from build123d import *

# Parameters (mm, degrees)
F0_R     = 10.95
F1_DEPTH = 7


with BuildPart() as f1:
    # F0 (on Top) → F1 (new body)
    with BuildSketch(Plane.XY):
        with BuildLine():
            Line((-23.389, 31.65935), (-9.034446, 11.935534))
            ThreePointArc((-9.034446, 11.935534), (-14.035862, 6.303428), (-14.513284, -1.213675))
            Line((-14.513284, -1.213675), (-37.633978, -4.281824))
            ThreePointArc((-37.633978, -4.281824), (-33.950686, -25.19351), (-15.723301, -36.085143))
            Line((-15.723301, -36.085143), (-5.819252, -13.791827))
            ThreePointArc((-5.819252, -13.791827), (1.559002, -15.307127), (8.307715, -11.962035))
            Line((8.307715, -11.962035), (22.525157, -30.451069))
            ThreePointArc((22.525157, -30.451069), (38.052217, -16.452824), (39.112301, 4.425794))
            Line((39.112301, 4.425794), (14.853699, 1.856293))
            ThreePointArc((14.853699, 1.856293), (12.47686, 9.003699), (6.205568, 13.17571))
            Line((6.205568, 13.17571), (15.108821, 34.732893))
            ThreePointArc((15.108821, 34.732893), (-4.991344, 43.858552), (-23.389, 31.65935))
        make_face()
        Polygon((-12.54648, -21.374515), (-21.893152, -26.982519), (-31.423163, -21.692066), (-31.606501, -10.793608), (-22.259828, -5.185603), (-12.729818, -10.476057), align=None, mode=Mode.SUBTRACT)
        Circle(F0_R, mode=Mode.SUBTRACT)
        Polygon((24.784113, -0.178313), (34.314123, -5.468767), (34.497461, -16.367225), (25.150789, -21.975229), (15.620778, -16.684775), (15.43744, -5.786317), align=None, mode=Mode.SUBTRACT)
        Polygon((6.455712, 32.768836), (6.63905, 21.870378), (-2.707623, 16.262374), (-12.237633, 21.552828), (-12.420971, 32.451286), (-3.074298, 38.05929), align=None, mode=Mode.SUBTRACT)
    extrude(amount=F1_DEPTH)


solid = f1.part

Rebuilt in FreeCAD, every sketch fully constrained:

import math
import FreeCAD as App
import Part
import Sketcher
from FreeCAD import Vector
Q = App.Units.Quantity


def add_polygon(sketch, points):
    """Adds a closed chain of lines whose ends are joined by coincident constraints."""
    first, n = sketch.GeometryCount, len(points)
    for a, b in zip(points, points[1:] + points[:1]):
        sketch.addGeometry(Part.LineSegment(App.Vector(*a, 0), App.Vector(*b, 0)), False)
    for i in range(n):
        sketch.addConstraint(Sketcher.Constraint("Coincident", first + i, 2, first + (i + 1) % n, 1))

doc = App.newDocument("Part")
params = doc.addObject("Spreadsheet::Sheet", "Params")
for row, (alias, value) in enumerate([
    ("sketch1_diameter", "21.9 mm"),
    ("sketch1_length", "10.9 mm"),
    ("sketch1_length2", "10.899999 mm"),
    ("sketch1_length3", "10.9 mm"),
    ("sketch1_length4", "10.9 mm"),
    ("pad1_length", "7 mm"),
], start=1):
    params.set(f"A{row}", alias)
    params.set(f"B{row}", "=" + value)
    params.setAlias(f"B{row}", alias)

body = doc.addObject("PartDesign::Body", "Body")

# Sketch on XY plane
sketch1 = doc.addObject("Sketcher::SketchObject", "Sketch")
body.addObject(sketch1)
sketch1.AttachmentSupport = (doc.XY_Plane, [""])
sketch1.MapMode = "FlatFace"
sketch1.addGeometry(Part.LineSegment(Vector(-23.389, 31.65935, 0), Vector(-9.034446, 11.935534, 0)), False)  # 0
sketch1.addGeometry(Part.ArcOfCircle(Part.Circle(Vector(-3.350159, 1.851051, 0), Vector(0, 0, 1), 11.576179), math.radians(119.408509), math.radians(195.351754)), False)  # 1
sketch1.addGeometry(Part.LineSegment(Vector(-14.513284, -1.213675, 0), Vector(-37.633978, -4.281824, 0)), False)  # 2
sketch1.addGeometry(Part.ArcOfCircle(Part.Circle(Vector(-12.92872, -10.710571, 0), Vector(0, 0, 1), 25.527996), math.radians(165.414097), math.radians(263.715165)), False)  # 3
sketch1.addGeometry(Part.LineSegment(Vector(-15.723301, -36.085143, 0), Vector(-5.819252, -13.791827, 0)), False)  # 4
sketch1.addGeometry(Part.ArcOfCircle(Part.Circle(Vector(0.072022, -3.826849, 0), Vector(0, 0, 1), 11.576178), math.radians(-120.591489), math.radians(-44.648244)), False)  # 5
sketch1.addGeometry(Part.LineSegment(Vector(8.307715, -11.962035, 0), Vector(22.525157, -30.451069, 0)), False)  # 6
sketch1.addGeometry(Part.ArcOfCircle(Part.Circle(Vector(13.415262, -4.735694, 0), Vector(0, 0, 1), 27.281325), math.radians(-70.492866), math.radians(19.622128)), False)  # 7
sketch1.addGeometry(Part.LineSegment(Vector(39.112301, 4.425794, 0), Vector(14.853699, 1.856293, 0)), False)  # 8
sketch1.addGeometry(Part.ArcOfCircle(Part.Circle(Vector(3.278137, 1.975797, 0), Vector(0, 0, 1), 11.576178), math.radians(-0.591489), math.radians(75.351761)), False)  # 9
sketch1.addGeometry(Part.LineSegment(Vector(6.205568, 13.17571, 0), Vector(15.108821, 34.732893, 0)), False)  # 10
sketch1.addGeometry(Part.ArcOfCircle(Part.Circle(Vector(-3.178548, 21.152285, 0), Vector(0, 0, 1), 22.778516), math.radians(36.598402), math.radians(152.530858)), False)  # 11
add_polygon(sketch1, [(-12.729818, -10.476057), (-12.54648, -21.374515), (-21.893152, -26.982519), (-31.423163, -21.692066), (-31.606501, -10.793608), (-22.259828, -5.185603)])  # lines 12-17
sketch1.addGeometry(Part.Circle(Vector(0, 0, 0), Vector(0, 0, 1), 10.95), False)  # 18
add_polygon(sketch1, [(15.43744, -5.786317), (24.784113, -0.178313), (34.314123, -5.468767), (34.497461, -16.367225), (25.150789, -21.975229), (15.620778, -16.684775)])  # lines 19-24
add_polygon(sketch1, [(-3.074298, 38.05929), (6.455712, 32.768836), (6.63905, 21.870378), (-2.707623, 16.262374), (-12.237633, 21.552828), (-12.420971, 32.451286)])  # lines 25-30
sketch1.addConstraint([
    Sketcher.Constraint("Coincident", 0, 2, 1, 1),
    Sketcher.Constraint("Coincident", 1, 2, 2, 1),
    Sketcher.Constraint("Coincident", 2, 2, 3, 1),
    Sketcher.Constraint("Coincident", 3, 2, 4, 1),
    Sketcher.Constraint("Coincident", 4, 2, 5, 1),
    Sketcher.Constraint("Coincident", 5, 2, 6, 1),
    Sketcher.Constraint("Coincident", 6, 2, 7, 1),
    Sketcher.Constraint("Coincident", 7, 2, 8, 1),
    Sketcher.Constraint("Coincident", 8, 2, 9, 1),
    Sketcher.Constraint("Coincident", 9, 2, 10, 1),
    Sketcher.Constraint("Coincident", 10, 2, 11, 1),
    Sketcher.Constraint("Coincident", 11, 2, 0, 1),
    Sketcher.Constraint("Coincident", 18, 3, -1, 1),
    Sketcher.Constraint("Diameter", 18, Q("21.9 mm")),
    Sketcher.Constraint("Distance", 12, Q("10.9 mm")),
    Sketcher.Constraint("Distance", 13, Q("10.899999 mm")),
    Sketcher.Constraint("Distance", 14, Q("10.9 mm")),
    Sketcher.Constraint("Distance", 15, Q("10.9 mm")),
    Sketcher.Constraint("Distance", 16, Q("10.900001 mm")),
    Sketcher.Constraint("Distance", 17, Q("10.9 mm")),
    Sketcher.Constraint("Distance", 19, Q("10.9 mm")),
    Sketcher.Constraint("Distance", 20, Q("10.9 mm")),
    Sketcher.Constraint("Distance", 21, Q("10.9 mm")),
    Sketcher.Constraint("Distance", 22, Q("10.899999 mm")),
    Sketcher.Constraint("Distance", 23, Q("10.900001 mm")),
    Sketcher.Constraint("Distance", 24, Q("10.9 mm")),
    Sketcher.Constraint("Distance", 25, Q("10.9 mm")),
    Sketcher.Constraint("Distance", 26, Q("10.9 mm")),
    Sketcher.Constraint("Distance", 27, Q("10.9 mm")),
    Sketcher.Constraint("Distance", 28, Q("10.9 mm")),
    Sketcher.Constraint("Distance", 29, Q("10.9 mm")),
    Sketcher.Constraint("Distance", 30, Q("10.9 mm")),
    Sketcher.Constraint("Radius", 1, Q("11.576179 mm")),
    Sketcher.Constraint("Radius", 9, Q("11.576178 mm")),
    Sketcher.Constraint("DistanceX", 11, 2, -1, 1, Q("23.389 mm")),
    Sketcher.Constraint("Radius", 3, Q("25.527996 mm")),
    Sketcher.Constraint("Radius", 5, Q("11.576178 mm")),
    Sketcher.Constraint("Radius", 7, Q("27.281325 mm")),
    Sketcher.Constraint("Radius", 11, Q("22.778516 mm")),
    Sketcher.Constraint("DistanceX", 2, 2, 5, 3, Q("37.706 mm")),
    Sketcher.Constraint("DistanceY", 11, 3, 29, 2, Q("11.299001 mm")),
    Sketcher.Constraint("DistanceX", 3, 2, -1, 1, Q("15.723301 mm")),
    Sketcher.Constraint("DistanceX", -1, 1, 7, 2, Q("39.112301 mm")),
    Sketcher.Constraint("DistanceX", -1, 1, 8, 2, Q("14.853699 mm")),
    Sketcher.Constraint("DistanceX", 15, 2, -1, 1, Q("31.606501 mm")),
    Sketcher.Constraint("DistanceX", 30, 2, -1, 1, Q("3.074298 mm")),
    Sketcher.Constraint("DistanceY", 5, 3, 1, 3, Q("5.6779 mm")),
    Sketcher.Constraint("DistanceY", 8, 2, 10, 2, Q("32.8766 mm")),
    Sketcher.Constraint("DistanceY", 1, 3, 11, 2, Q("29.808299 mm")),
    Sketcher.Constraint("DistanceX", 12, 2, 5, 3, Q("12.618502 mm")),
    Sketcher.Constraint("DistanceX", 13, 2, 4, 2, Q("16.0739 mm")),
    Sketcher.Constraint("DistanceX", 3, 3, 17, 2, Q("0.198902 mm")),
    Sketcher.Constraint("DistanceX", 7, 3, 21, 2, Q("21.082199 mm")),
    Sketcher.Constraint("DistanceY", 0, 2, 25, 2, Q("20.833302 mm")),
    Sketcher.Constraint("DistanceX", 11, 3, 26, 2, Q("9.817598 mm")),
    Sketcher.Constraint("Distance", 2, Q("23.323379 mm")),
    Sketcher.Constraint("Distance", 6, Q("23.32338 mm")),
    Sketcher.Constraint("Distance", 10, Q("23.32338 mm")),
    Sketcher.Constraint("DistanceX", 1, 3, -1, 1, Q("3.350159 mm")),
    Sketcher.Constraint("DistanceY", -1, 1, 1, 3, Q("1.851051 mm")),
    Sketcher.Constraint("DistanceX", 3, 3, -1, 1, Q("12.92872 mm")),
    Sketcher.Constraint("DistanceY", 3, 3, -1, 1, Q("10.710571 mm")),
    Sketcher.Constraint("DistanceX", -1, 1, 5, 3, Q("0.072022 mm")),
    Sketcher.Constraint("DistanceX", -1, 1, 7, 3, Q("13.415262 mm")),
    Sketcher.Constraint("DistanceX", 11, 3, -1, 1, Q("3.178548 mm")),
    Sketcher.Constraint("DistanceX", 4, 2, -1, 1, Q("5.819252 mm")),
    Sketcher.Constraint("DistanceY", 6, 2, -1, 1, Q("30.451069 mm")),
    Sketcher.Constraint("DistanceX", -1, 1, 9, 2, Q("6.205568 mm")),
    Sketcher.Constraint("DistanceY", -1, 1, 9, 2, Q("13.17571 mm")),
    Sketcher.Constraint("DistanceY", 13, 2, -1, 1, Q("26.982519 mm")),
    Sketcher.Constraint("DistanceY", 15, 2, -1, 1, Q("10.793608 mm")),
    Sketcher.Constraint("DistanceX", -1, 1, 22, 2, Q("25.150789 mm")),
    Sketcher.Constraint("DistanceY", 22, 2, -1, 1, Q("21.975229 mm")),
    Sketcher.Constraint("DistanceX", -1, 1, 24, 2, Q("15.43744 mm")),
    Sketcher.Constraint("DistanceY", -1, 1, 28, 2, Q("21.552828 mm")),
    Sketcher.Constraint("DistanceX", 29, 2, -1, 1, Q("12.420971 mm")),
    Sketcher.Constraint("DistanceY", 7, 3, 9, 3, Q("6.711491 mm")),
    Sketcher.Constraint("DistanceY", 0, 2, 11, 3, Q("9.216751 mm")),
    Sketcher.Constraint("DistanceX", 7, 3, 19, 2, Q("11.368851 mm")),
    Sketcher.Constraint("DistanceY", 7, 3, 19, 2, Q("4.557381 mm")),
])
sketch1.setExpression("Constraints[31]", "Params.sketch1_diameter")
sketch1.setExpression("Constraints[32]", "Params.sketch1_length")
sketch1.setExpression("Constraints[33]", "Params.sketch1_length2")
sketch1.setExpression("Constraints[34]", "Params.sketch1_length3")
sketch1.setExpression("Constraints[35]", "Params.sketch1_length4")
pad1 = doc.addObject("PartDesign::Pad", "Pad")
body.addObject(pad1)
pad1.Profile = sketch1
pad1.setExpression("Length", "Params.pad1_length")

doc.recompute()
